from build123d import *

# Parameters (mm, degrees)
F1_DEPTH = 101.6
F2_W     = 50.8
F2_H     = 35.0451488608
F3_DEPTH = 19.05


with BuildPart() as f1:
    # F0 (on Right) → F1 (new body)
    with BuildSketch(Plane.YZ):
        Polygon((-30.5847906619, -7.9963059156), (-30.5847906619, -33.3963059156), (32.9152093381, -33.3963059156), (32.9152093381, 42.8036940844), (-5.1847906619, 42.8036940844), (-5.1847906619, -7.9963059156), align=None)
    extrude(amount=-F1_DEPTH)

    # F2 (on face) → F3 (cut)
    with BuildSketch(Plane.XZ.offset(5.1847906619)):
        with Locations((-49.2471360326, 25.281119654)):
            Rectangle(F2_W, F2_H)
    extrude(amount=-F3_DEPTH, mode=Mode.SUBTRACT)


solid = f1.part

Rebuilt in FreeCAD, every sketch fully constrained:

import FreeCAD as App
import Part
import Sketcher
Q = App.Units.Quantity


def add_polygon(sketch, points):
    """Adds a closed chain of lines whose ends are joined by coincident constraints."""
    first, n = sketch.GeometryCount, len(points)
    for a, b in zip(points, points[1:] + points[:1]):
        sketch.addGeometry(Part.LineSegment(App.Vector(*a, 0), App.Vector(*b, 0)), False)
    for i in range(n):
        sketch.addConstraint(Sketcher.Constraint("Coincident", first + i, 2, first + (i + 1) % n, 1))

doc = App.newDocument("Part")
params = doc.addObject("Spreadsheet::Sheet", "Params")
for row, (alias, value) in enumerate([
    ("sketch1_width", "1 in"),
    ("sketch1_height", "3 in"),
    ("sketch1_width2", "2.5 in"),
    ("pad1_length", "4 in"),
    ("sketch2_width", "2 in"),
    ("pocket1_length", "0.75 in"),
], start=1):
    params.set(f"A{row}", alias)
    params.set(f"B{row}", "=" + value)
    params.setAlias(f"B{row}", alias)

body = doc.addObject("PartDesign::Body", "Body")

sketch1 = doc.addObject("Sketcher::SketchObject", "Sketch")
body.addObject(sketch1)
sketch1.AttachmentSupport = (doc.YZ_Plane, [""])
sketch1.MapMode = "FlatFace"
add_polygon(sketch1, [(-31, -8), (-31, -33), (33, -33), (33, 43), (-5, 43), (-5, -8)])
sketch1.addConstraint([
    Sketcher.Constraint("Vertical", 0),
    Sketcher.Constraint("Horizontal", 1),
    Sketcher.Constraint("Vertical", 2),
    Sketcher.Constraint("Horizontal", 3),
    Sketcher.Constraint("Vertical", 4),
    Sketcher.Constraint("Horizontal", 5),
    Sketcher.Constraint("Equal", 5, 0),
    Sketcher.Constraint("DistanceX", 5, 2, 5, 1, Q("1 in")),
    Sketcher.Constraint("DistanceY", 2, 1, 2, 2, Q("3 in")),
    Sketcher.Constraint("DistanceX", 1, 1, 1, 2, Q("2.5 in")),
    Sketcher.Constraint("DistanceX", 0, 2, -1, 1, 30.584791),
    Sketcher.Constraint("DistanceY", 0, 2, -1, 1, 33.396306),
])
sketch1.setExpression("Constraints[13]", "Params.sketch1_width")
sketch1.setExpression("Constraints[14]", "Params.sketch1_height")
sketch1.setExpression("Constraints[15]", "Params.sketch1_width2")
pad1 = doc.addObject("PartDesign::Pad", "Pad")
body.addObject(pad1)
pad1.Profile = sketch1
pad1.setExpression("Length", "Params.pad1_length")
pad1.Reversed = True

sketch2 = doc.addObject("Sketcher::SketchObject", "Sketch001")
body.addObject(sketch2)
sketch2.AttachmentSupport = (doc.XZ_Plane, [""])
sketch2.MapMode = "FlatFace"
sketch2.AttachmentOffset = App.Placement(App.Vector(0, 0, 5.184791), App.Rotation())
add_polygon(sketch2, [(-75, 43), (-75, 8), (-24, 8), (-24, 43)])
sketch2.addConstraint([
    Sketcher.Constraint("Vertical", 0),
    Sketcher.Constraint("Horizontal", 1),
    Sketcher.Constraint("Vertical", 2),
    Sketcher.Constraint("Horizontal", 3),
    Sketcher.Constraint("DistanceX", 1, 1, 1, 2, Q("2 in")),
    Sketcher.Constraint("DistanceY", 0, 2, 0, 1, 35.045149),
    Sketcher.Constraint("DistanceX", 0, 2, -1, 1, 74.647136),
    Sketcher.Constraint("DistanceY", -1, 1, 0, 2, 7.758545),
])
sketch2.setExpression("Constraints[8]", "Params.sketch2_width")
pocket1 = doc.addObject("PartDesign::Pocket", "Pocket")
body.addObject(pocket1)
pocket1.Profile = sketch2
pocket1.setExpression("Length", "Params.pocket1_length")

doc.recompute()
